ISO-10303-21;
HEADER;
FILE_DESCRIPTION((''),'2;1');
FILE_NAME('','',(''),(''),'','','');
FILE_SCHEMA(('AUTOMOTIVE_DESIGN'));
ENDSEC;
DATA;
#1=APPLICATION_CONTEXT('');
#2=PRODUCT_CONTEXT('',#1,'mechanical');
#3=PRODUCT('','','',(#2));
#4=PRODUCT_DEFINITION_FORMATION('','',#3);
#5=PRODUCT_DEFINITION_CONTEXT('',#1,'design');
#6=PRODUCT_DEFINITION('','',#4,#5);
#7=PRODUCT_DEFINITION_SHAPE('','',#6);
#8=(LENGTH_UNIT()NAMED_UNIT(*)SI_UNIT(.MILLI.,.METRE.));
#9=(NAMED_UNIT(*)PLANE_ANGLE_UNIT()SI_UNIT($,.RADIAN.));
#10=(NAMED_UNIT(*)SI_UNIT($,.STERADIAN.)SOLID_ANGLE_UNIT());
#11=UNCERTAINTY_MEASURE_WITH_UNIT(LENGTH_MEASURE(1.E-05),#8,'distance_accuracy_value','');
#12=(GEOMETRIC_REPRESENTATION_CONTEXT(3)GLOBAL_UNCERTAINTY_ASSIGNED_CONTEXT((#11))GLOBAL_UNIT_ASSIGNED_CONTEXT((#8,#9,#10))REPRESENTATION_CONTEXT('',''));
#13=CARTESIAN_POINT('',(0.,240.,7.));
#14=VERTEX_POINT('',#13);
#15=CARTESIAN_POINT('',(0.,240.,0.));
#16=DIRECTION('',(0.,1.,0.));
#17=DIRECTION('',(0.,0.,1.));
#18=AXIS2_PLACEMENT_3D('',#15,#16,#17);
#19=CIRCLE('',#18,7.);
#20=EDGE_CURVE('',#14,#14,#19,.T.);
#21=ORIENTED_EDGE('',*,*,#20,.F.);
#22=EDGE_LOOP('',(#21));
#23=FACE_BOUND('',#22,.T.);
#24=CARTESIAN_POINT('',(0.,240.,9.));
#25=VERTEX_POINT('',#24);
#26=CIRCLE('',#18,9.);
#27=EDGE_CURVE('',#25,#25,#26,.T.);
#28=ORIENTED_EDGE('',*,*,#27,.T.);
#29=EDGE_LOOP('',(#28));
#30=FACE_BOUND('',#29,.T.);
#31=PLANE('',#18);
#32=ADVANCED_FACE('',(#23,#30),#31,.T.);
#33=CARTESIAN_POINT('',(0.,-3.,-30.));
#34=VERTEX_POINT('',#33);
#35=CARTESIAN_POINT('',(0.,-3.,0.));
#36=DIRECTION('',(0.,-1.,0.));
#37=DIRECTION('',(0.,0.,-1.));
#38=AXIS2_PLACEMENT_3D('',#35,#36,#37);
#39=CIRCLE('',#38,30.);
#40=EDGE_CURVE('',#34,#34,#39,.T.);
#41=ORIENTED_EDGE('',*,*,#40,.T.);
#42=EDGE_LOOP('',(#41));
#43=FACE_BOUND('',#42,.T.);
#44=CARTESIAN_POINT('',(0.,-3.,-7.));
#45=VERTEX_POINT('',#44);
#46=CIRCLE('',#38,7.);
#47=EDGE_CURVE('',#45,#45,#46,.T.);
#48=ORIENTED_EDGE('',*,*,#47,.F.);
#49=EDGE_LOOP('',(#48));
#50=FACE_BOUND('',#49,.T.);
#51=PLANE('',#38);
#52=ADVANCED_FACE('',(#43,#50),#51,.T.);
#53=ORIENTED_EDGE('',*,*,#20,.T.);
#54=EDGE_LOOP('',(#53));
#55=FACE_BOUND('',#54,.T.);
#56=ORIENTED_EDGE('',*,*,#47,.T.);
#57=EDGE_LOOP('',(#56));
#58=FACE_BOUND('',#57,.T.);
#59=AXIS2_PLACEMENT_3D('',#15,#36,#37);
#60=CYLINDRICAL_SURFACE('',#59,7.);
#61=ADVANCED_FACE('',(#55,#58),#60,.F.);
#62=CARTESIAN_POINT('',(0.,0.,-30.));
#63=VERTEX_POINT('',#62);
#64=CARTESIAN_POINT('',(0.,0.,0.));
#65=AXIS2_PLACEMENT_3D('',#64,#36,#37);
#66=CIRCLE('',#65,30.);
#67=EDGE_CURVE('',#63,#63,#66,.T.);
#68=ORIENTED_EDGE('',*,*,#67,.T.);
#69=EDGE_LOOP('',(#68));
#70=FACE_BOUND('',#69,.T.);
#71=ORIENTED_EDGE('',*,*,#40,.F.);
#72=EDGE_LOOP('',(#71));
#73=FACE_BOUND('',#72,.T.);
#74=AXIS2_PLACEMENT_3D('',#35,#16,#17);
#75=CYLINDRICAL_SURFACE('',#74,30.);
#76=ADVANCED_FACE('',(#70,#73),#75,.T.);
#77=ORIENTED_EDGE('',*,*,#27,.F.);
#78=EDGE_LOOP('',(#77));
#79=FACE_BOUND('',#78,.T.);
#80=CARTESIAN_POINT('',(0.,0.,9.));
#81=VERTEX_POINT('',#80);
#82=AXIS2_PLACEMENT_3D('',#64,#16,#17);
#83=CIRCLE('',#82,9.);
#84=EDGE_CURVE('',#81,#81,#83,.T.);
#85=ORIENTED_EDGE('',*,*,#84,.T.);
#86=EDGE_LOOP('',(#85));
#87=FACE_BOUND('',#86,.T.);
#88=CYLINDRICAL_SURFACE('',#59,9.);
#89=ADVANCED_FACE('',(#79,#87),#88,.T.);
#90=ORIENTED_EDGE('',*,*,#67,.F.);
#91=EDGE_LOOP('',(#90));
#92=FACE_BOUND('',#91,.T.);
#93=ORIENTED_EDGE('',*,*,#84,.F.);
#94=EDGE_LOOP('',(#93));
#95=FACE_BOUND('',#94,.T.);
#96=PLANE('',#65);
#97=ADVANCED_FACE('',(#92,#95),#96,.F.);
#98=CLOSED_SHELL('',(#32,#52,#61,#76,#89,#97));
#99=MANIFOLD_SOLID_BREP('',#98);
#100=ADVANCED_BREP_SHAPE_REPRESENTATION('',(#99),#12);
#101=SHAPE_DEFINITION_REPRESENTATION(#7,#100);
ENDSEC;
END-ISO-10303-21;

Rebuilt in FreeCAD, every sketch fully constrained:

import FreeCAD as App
import Part
import Sketcher

V = App.Vector
Q = App.Units.Quantity

doc = App.newDocument("Part")
body = doc.addObject("PartDesign::Body", "Body")

sketch1 = body.newObject("Sketcher::SketchObject", "Sketch")
sketch1.AttachmentSupport = (doc.getObject("XZ_Plane"), [""])
sketch1.MapMode = "FlatFace"
sketch1.addGeometry([
    Part.Circle(V(0, 0, 0), V(0, 0, 1), 9),
    Part.Circle(V(0, 0, 0), V(0, 0, 1), 7),
], False)
sketch1.addConstraint([
    Sketcher.Constraint("Coincident", 0, 3, -1, 1),
    Sketcher.Constraint("Coincident", 1, 3, -1, 1),
    Sketcher.Constraint("Diameter", 0, Q("18 mm")),
    Sketcher.Constraint("Diameter", 1, Q("14 mm")),
])
pad1 = body.newObject("PartDesign::Pad", "Pad")
pad1.Profile = sketch1
pad1.Length = 240
pad1.Reversed = True

sketch2 = body.newObject("Sketcher::SketchObject", "Sketch001")
sketch2.AttachmentSupport = (doc.getObject("XZ_Plane"), [""])
sketch2.MapMode = "FlatFace"
sketch2.AttachmentOffset = App.Placement(V(0, 0, 3), App.Rotation())
sketch2.addGeometry([
    Part.Circle(V(0, 0, 0), V(0, 0, 1), 30),
    Part.Circle(V(0, 0, 0), V(0, 0, 1), 7),
], False)
sketch2.addConstraint([
    Sketcher.Constraint("Coincident", 0, 3, -1, 1),
    Sketcher.Constraint("Coincident", 1, 3, -1, 1),
    Sketcher.Constraint("Diameter", 0, Q("60 mm")),
    Sketcher.Constraint("Diameter", 1, Q("14 mm")),
])
pad2 = body.newObject("PartDesign::Pad", "Pad001")
pad2.Profile = sketch2
pad2.Length = 3
pad2.Reversed = True

doc.recompute()
